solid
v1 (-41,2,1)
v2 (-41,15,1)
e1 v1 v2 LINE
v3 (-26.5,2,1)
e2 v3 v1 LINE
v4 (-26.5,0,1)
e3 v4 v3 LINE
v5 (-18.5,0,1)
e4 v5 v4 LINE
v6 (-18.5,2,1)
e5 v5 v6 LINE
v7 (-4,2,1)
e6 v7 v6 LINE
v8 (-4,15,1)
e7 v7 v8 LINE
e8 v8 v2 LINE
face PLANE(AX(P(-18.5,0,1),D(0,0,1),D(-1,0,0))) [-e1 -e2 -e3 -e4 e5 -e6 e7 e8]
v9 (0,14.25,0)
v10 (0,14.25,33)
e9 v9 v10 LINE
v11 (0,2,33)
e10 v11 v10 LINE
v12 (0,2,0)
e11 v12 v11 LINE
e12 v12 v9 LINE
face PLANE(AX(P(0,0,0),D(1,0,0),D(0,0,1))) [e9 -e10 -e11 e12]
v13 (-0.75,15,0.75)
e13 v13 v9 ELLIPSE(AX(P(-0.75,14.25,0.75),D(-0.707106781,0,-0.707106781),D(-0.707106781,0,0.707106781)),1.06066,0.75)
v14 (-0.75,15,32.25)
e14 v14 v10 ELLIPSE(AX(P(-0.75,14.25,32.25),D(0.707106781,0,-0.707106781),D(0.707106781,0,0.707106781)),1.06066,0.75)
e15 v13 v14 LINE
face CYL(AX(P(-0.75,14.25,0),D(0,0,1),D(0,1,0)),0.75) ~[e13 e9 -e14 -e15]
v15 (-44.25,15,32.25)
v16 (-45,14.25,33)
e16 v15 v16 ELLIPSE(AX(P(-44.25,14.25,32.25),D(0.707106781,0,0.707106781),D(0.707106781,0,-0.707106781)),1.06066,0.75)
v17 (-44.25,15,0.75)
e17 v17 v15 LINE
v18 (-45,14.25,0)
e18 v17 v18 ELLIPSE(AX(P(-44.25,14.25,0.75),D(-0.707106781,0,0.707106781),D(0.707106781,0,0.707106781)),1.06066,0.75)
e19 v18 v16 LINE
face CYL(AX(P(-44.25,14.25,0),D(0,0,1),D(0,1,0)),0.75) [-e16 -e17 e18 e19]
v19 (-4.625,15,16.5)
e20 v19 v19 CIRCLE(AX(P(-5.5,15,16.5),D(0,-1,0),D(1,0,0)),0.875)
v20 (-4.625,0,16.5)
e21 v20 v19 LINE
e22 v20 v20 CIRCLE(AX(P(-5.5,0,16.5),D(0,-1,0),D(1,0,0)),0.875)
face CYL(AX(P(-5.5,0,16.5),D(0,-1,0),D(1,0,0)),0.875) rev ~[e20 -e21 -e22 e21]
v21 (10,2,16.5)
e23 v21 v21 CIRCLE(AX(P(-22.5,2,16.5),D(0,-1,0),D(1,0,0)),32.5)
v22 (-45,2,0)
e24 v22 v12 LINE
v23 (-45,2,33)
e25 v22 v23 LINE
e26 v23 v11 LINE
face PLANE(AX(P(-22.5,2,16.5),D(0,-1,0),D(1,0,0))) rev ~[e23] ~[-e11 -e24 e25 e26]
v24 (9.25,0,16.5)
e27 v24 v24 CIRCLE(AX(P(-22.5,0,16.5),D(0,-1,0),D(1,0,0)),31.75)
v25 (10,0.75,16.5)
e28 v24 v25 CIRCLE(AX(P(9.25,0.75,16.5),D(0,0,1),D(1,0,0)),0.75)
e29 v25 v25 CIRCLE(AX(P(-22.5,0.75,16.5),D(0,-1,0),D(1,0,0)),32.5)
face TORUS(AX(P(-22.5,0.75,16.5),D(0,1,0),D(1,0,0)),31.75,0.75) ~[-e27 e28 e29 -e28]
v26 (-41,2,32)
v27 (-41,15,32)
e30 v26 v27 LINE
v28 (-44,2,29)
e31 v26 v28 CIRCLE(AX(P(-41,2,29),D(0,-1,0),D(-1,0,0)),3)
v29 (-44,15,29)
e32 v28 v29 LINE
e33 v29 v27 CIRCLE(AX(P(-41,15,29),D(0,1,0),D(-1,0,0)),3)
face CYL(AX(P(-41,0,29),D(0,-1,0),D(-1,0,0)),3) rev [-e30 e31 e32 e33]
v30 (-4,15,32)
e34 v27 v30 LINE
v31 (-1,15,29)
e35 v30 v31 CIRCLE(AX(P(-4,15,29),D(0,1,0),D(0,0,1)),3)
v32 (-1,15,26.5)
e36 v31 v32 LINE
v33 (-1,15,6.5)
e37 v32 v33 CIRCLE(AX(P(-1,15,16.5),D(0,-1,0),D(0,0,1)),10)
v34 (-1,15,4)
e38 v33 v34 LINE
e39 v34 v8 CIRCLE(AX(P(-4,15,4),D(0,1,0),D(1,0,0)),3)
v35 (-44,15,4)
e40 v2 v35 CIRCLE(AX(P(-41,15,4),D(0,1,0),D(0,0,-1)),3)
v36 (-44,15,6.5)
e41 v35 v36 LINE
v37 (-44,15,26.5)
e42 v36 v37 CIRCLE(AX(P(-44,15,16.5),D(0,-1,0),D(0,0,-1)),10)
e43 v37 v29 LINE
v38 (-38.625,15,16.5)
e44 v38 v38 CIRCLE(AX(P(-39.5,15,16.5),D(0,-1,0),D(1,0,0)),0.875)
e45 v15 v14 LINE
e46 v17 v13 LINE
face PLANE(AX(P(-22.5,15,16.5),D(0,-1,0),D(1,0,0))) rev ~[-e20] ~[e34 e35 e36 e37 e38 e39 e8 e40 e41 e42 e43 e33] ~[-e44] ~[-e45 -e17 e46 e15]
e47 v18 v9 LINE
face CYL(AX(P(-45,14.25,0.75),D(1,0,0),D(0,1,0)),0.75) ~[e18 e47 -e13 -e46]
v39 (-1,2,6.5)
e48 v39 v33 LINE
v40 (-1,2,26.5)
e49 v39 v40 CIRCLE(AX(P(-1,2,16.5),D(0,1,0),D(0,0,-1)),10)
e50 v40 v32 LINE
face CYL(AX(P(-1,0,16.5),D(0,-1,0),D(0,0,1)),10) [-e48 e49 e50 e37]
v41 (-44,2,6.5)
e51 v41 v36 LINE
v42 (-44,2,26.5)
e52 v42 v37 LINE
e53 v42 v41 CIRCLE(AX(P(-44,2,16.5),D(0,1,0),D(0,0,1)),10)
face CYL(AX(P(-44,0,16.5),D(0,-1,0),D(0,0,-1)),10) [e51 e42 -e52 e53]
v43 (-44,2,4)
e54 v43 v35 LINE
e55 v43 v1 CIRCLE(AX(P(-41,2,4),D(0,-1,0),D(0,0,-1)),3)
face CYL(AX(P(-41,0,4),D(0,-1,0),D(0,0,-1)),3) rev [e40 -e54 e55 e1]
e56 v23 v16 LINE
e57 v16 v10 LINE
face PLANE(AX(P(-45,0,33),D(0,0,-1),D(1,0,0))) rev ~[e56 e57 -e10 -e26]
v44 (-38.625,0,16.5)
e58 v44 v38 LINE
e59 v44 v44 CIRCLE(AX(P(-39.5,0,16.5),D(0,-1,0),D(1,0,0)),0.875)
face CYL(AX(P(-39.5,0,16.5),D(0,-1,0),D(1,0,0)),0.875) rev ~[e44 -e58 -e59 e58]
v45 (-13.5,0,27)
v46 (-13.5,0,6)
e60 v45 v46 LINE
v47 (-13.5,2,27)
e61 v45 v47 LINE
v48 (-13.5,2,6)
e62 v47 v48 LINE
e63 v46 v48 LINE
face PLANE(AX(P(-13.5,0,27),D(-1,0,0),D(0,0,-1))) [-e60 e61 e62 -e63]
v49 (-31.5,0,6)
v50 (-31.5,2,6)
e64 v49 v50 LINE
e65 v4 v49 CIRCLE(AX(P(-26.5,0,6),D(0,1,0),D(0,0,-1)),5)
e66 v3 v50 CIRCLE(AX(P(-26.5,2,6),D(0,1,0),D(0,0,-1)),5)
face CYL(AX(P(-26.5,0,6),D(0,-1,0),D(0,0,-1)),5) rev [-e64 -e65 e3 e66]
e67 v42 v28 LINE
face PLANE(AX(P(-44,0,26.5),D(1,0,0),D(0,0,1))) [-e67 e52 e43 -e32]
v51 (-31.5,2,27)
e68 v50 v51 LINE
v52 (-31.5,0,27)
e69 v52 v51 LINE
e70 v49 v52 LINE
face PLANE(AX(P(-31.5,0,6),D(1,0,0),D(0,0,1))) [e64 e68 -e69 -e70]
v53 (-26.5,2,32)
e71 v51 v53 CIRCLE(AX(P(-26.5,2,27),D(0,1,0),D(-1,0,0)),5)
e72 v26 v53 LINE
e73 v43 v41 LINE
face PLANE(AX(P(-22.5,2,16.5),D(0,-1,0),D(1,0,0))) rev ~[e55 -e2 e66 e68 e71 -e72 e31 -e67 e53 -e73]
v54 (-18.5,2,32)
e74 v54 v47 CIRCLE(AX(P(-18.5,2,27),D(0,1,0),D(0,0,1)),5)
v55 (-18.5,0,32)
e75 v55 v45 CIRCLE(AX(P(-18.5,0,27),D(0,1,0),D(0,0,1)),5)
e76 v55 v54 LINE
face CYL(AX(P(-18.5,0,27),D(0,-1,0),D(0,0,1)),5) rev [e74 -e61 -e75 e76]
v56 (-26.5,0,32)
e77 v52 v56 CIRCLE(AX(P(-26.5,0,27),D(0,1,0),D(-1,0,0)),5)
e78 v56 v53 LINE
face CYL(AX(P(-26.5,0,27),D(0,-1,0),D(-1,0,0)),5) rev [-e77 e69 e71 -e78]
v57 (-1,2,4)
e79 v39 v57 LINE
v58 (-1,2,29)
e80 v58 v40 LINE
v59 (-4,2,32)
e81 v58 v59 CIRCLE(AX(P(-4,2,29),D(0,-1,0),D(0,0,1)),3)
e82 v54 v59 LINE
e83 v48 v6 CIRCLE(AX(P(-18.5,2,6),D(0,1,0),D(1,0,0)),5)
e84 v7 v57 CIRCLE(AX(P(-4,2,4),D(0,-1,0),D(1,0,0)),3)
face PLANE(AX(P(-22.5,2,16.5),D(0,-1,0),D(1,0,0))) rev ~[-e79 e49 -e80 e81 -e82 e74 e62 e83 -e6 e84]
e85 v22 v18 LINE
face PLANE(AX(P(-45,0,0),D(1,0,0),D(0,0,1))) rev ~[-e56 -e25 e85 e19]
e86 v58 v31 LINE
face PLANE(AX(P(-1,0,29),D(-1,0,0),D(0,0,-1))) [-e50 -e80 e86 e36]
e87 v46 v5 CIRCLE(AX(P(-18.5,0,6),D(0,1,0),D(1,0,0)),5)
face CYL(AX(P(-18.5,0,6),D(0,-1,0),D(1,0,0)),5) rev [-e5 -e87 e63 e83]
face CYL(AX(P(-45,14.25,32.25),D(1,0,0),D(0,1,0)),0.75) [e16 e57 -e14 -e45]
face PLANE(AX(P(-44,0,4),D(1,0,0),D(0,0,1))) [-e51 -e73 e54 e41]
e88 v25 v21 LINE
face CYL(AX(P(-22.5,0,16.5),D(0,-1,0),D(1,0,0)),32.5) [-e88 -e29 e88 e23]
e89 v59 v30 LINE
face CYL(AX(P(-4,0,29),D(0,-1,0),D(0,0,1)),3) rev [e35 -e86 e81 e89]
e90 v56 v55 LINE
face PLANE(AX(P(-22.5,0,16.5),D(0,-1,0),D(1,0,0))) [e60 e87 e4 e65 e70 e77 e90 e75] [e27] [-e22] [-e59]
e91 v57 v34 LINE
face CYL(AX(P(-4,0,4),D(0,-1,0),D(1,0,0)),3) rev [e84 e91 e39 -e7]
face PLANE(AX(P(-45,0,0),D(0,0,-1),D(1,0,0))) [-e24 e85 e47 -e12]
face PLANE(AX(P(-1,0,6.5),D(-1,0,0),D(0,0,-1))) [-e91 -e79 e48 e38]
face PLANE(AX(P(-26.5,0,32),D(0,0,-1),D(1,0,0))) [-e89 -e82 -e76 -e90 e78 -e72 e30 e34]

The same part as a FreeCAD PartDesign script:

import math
import FreeCAD as App
import Part
import Sketcher


def edges_at(feature, points):
    """Names of the edges that pass closest to the given points."""
    edges = feature.Shape.Edges
    near = lambda p: min(range(len(edges)), key=lambda i: edges[i].distToShape(Part.Vertex(*p))[0])
    return sorted({f"Edge{near(p) + 1}" for p in points})

doc = App.newDocument("Part")
body = doc.addObject("PartDesign::Body", "Body")

sketch1 = doc.addObject("Sketcher::SketchObject", "Sketch")
body.addObject(sketch1)
sketch1.AttachmentSupport = (doc.XZ_Plane, [""])
sketch1.MapMode = "FlatFace"
sketch1.addGeometry([
    Part.Circle(App.Vector(-22.5, 16.5, 0), App.Vector(0, 0, 1), 32.5),
    Part.LineSegment(App.Vector(-26.5, 32, 0), App.Vector(-18.5, 32, 0)),
    Part.ArcOfCircle(Part.Circle(App.Vector(-18.5, 27, 0), App.Vector(0, 0, 1), 5), math.radians(0), math.radians(90)),
    Part.LineSegment(App.Vector(-13.5, 27, 0), App.Vector(-13.5, 6, 0)),
    Part.ArcOfCircle(Part.Circle(App.Vector(-18.5, 6, 0), App.Vector(0, 0, 1), 5), math.radians(-90), math.radians(0)),
    Part.LineSegment(App.Vector(-18.5, 1, 0), App.Vector(-26.5, 1, 0)),
    Part.ArcOfCircle(Part.Circle(App.Vector(-26.5, 6, 0), App.Vector(0, 0, 1), 5), math.radians(180), math.radians(270)),
    Part.LineSegment(App.Vector(-31.5, 6, 0), App.Vector(-31.5, 27, 0)),
    Part.ArcOfCircle(Part.Circle(App.Vector(-26.5, 27, 0), App.Vector(0, 0, 1), 5), math.radians(90), math.radians(180)),
    Part.LineSegment(App.Vector(-44, 6.5, 0), App.Vector(-44, 26.5, 0)),
    Part.ArcOfCircle(Part.Circle(App.Vector(-44, 16.5, 0), App.Vector(0, 0, 1), 10), math.radians(-90), math.radians(90)),
    Part.LineSegment(App.Vector(-1, 26.5, 0), App.Vector(-1, 6.5, 0)),
    Part.ArcOfCircle(Part.Circle(App.Vector(-1, 16.5, 0), App.Vector(0, 0, 1), 10), math.radians(90), math.radians(270)),
], False)
sketch1.addConstraint([
    Sketcher.Constraint("Tangent", 1, 2, 2, 2),
    Sketcher.Constraint("Tangent", 2, 1, 3, 1),
    Sketcher.Constraint("Tangent", 3, 2, 4, 2),
    Sketcher.Constraint("Tangent", 4, 1, 5, 1),
    Sketcher.Constraint("Tangent", 5, 2, 6, 2),
    Sketcher.Constraint("Tangent", 6, 1, 7, 1),
    Sketcher.Constraint("Tangent", 7, 2, 8, 2),
    Sketcher.Constraint("Tangent", 8, 1, 1, 1),
    Sketcher.Constraint("Coincident", 9, 1, 10, 1),
    Sketcher.Constraint("Coincident", 10, 2, 9, 2),
    Sketcher.Constraint("Coincident", 11, 1, 12, 1),
    Sketcher.Constraint("Coincident", 12, 2, 11, 2),
    Sketcher.Constraint("Horizontal", 1),
    Sketcher.Constraint("Vertical", 3),
    Sketcher.Constraint("Horizontal", 5),
    Sketcher.Constraint("Vertical", 7),
    Sketcher.Constraint("Vertical", 9),
    Sketcher.Constraint("Vertical", 11),
    Sketcher.Constraint("Equal", 2, 4),
    Sketcher.Constraint("Equal", 4, 6),
    Sketcher.Constraint("Equal", 6, 8),
    Sketcher.Constraint("Equal", 10, 12),
    Sketcher.Constraint("Horizontal", 0, 3, 10, 3),
    Sketcher.Constraint("Horizontal", 10, 3, 12, 3),
    Sketcher.Constraint("Vertical", 10, 3, 9, 1),
    Sketcher.Constraint("Vertical", 12, 3, 11, 1),
    Sketcher.Constraint("Diameter", 0, 65.0),
    Sketcher.Constraint("Radius", 2, 5.0),
    Sketcher.Constraint("Radius", 10, 10.0),
    Sketcher.Constraint("DistanceX", 1, 1, 1, 2, 8.0),
    Sketcher.Constraint("DistanceY", 3, 2, 3, 1, 21.0),
    Sketcher.Constraint("DistanceY", -1, 1, 2, 3, 27.0),
    Sketcher.Constraint("DistanceX", 10, 3, -1, 1, 44.0),
    Sketcher.Constraint("DistanceX", 12, 3, -1, 1, 1.0),
    Sketcher.Constraint("DistanceX", 0, 3, 2, 3, 4.0),
    Sketcher.Constraint("DistanceX", 0, 3, -1, 1, 22.5),
    Sketcher.Constraint("DistanceY", -1, 1, 0, 3, 16.5),
])
pad1 = doc.addObject("PartDesign::Pad", "Pad")
body.addObject(pad1)
pad1.Profile = sketch1
pad1.Length = 2
pad1.Reversed = True

sketch2 = doc.addObject("Sketcher::SketchObject", "Sketch001")
body.addObject(sketch2)
sketch2.AttachmentSupport = (doc.XZ_Plane, [""])
sketch2.MapMode = "FlatFace"
sketch2.addGeometry([
    Part.LineSegment(App.Vector(-45, 33, 0), App.Vector(-45, 0, 0)),
    Part.LineSegment(App.Vector(-45, 0, 0), App.Vector(0, 0, 0)),
    Part.LineSegment(App.Vector(0, 0, 0), App.Vector(0, 33, 0)),
    Part.LineSegment(App.Vector(0, 33, 0), App.Vector(-45, 33, 0)),
    Part.Circle(App.Vector(-39.5, 16.5, 0), App.Vector(0, 0, 1), 0.875),
    Part.Circle(App.Vector(-5.5, 16.5, 0), App.Vector(0, 0, 1), 0.875),
    Part.LineSegment(App.Vector(-41, 32, 0), App.Vector(-4, 32, 0)),
    Part.ArcOfCircle(Part.Circle(App.Vector(-4, 29, 0), App.Vector(0, 0, 1), 3), math.radians(0), math.radians(90)),
    Part.LineSegment(App.Vector(-1, 29, 0), App.Vector(-1, 26.5, 0)),
    Part.ArcOfCircle(Part.Circle(App.Vector(-1, 16.5, 0), App.Vector(0, 0, 1), 10), math.radians(90), math.radians(270)),
    Part.LineSegment(App.Vector(-1, 6.5, 0), App.Vector(-1, 4, 0)),
    Part.ArcOfCircle(Part.Circle(App.Vector(-4, 4, 0), App.Vector(0, 0, 1), 3), math.radians(-90), math.radians(0)),
    Part.LineSegment(App.Vector(-4, 1, 0), App.Vector(-41, 1, 0)),
    Part.ArcOfCircle(Part.Circle(App.Vector(-41, 4, 0), App.Vector(0, 0, 1), 3), math.radians(180), math.radians(270)),
    Part.LineSegment(App.Vector(-44, 4, 0), App.Vector(-44, 6.5, 0)),
    Part.ArcOfCircle(Part.Circle(App.Vector(-44, 16.5, 0), App.Vector(0, 0, 1), 10), math.radians(-90), math.radians(90)),
    Part.LineSegment(App.Vector(-44, 26.5, 0), App.Vector(-44, 29, 0)),
    Part.ArcOfCircle(Part.Circle(App.Vector(-41, 29, 0), App.Vector(0, 0, 1), 3), math.radians(90), math.radians(180)),
], False)
sketch2.addConstraint([
    Sketcher.Constraint("Coincident", 0, 2, 1, 1),
    Sketcher.Constraint("Coincident", 1, 2, 2, 1),
    Sketcher.Constraint("Coincident", 2, 2, 3, 1),
    Sketcher.Constraint("Coincident", 3, 2, 0, 1),
    Sketcher.Constraint("Tangent", 6, 2, 7, 2),
    Sketcher.Constraint("Tangent", 7, 1, 8, 1),
    Sketcher.Constraint("Coincident", 8, 2, 9, 1),
    Sketcher.Constraint("Coincident", 9, 2, 10, 1),
    Sketcher.Constraint("Tangent", 10, 2, 11, 2),
    Sketcher.Constraint("Tangent", 11, 1, 12, 1),
    Sketcher.Constraint("Tangent", 12, 2, 13, 2),
    Sketcher.Constraint("Tangent", 13, 1, 14, 1),
    Sketcher.Constraint("Coincident", 14, 2, 15, 1),
    Sketcher.Constraint("Coincident", 15, 2, 16, 1),
    Sketcher.Constraint("Tangent", 16, 2, 17, 2),
    Sketcher.Constraint("Tangent", 17, 1, 6, 1),
    Sketcher.Constraint("Vertical", 0),
    Sketcher.Constraint("Horizontal", 1),
    Sketcher.Constraint("Vertical", 2),
    Sketcher.Constraint("Horizontal", 3),
    Sketcher.Constraint("Horizontal", 6),
    Sketcher.Constraint("Vertical", 8),
    Sketcher.Constraint("Vertical", 10),
    Sketcher.Constraint("Horizontal", 12),
    Sketcher.Constraint("Vertical", 14),
    Sketcher.Constraint("Vertical", 16),
    Sketcher.Constraint("Coincident", 1, 2, -1, 1),
    Sketcher.Constraint("Equal", 4, 5),
    Sketcher.Constraint("Equal", 7, 11),
    Sketcher.Constraint("Equal", 11, 13),
    Sketcher.Constraint("Equal", 9, 15),
    Sketcher.Constraint("Equal", 13, 17),
    Sketcher.Constraint("Horizontal", 4, 3, 5, 3),
    Sketcher.Constraint("Horizontal", 5, 3, 9, 3),
    Sketcher.Constraint("Horizontal", 9, 3, 15, 3),
    Sketcher.Constraint("Vertical", 7, 3, 11, 3),
    Sketcher.Constraint("Vertical", 13, 3, 17, 3),
    Sketcher.Constraint("Vertical", 9, 3, 7, 1),
    Sketcher.Constraint("Vertical", 15, 3, 13, 1),
    Sketcher.Constraint("Equal", 8, 10),
    Sketcher.Constraint("Radius", 7, 3.0),
    Sketcher.Constraint("Radius", 9, 10.0),
    Sketcher.Constraint("Diameter", 4, 1.75),
    Sketcher.Constraint("DistanceX", 1, 1, 1, 2, 45.0),
    Sketcher.Constraint("DistanceX", 6, 1, 6, 2, 37.0),
    Sketcher.Constraint("DistanceY", 0, 2, 0, 1, 33.0),
    Sketcher.Constraint("DistanceY", 8, 2, 8, 1, 2.5),
    Sketcher.Constraint("DistanceX", 7, 3, -1, 1, 4.0),
    Sketcher.Constraint("DistanceY", -1, 1, 7, 3, 29.0),
    Sketcher.Constraint("DistanceX", 4, 3, 5, 3, 34.0),
    Sketcher.Constraint("DistanceX", 4, 3, -1, 1, 39.5),
])
pad2 = doc.addObject("PartDesign::Pad", "Pad001")
body.addObject(pad2)
pad2.Profile = sketch2
pad2.Length = 15
pad2.Reversed = True
doc.recompute()

fillet = doc.addObject("PartDesign::Fillet", "Fillet")
body.addObject(fillet)
fillet.Base = (pad2, edges_at(pad2, [(-55, 0, 16.5)]))
fillet.Radius = 0.75
doc.recompute()

fillet2 = doc.addObject("PartDesign::Fillet", "Fillet001")
body.addObject(fillet2)
fillet2.Base = (fillet, edges_at(fillet, [
    (0, 15, 16.5),
    (-22.5, 15, 33),
    (-22.5, 15, 0),
    (-45, 15, 16.5),
]))
fillet2.Radius = 0.75

doc.recompute()
